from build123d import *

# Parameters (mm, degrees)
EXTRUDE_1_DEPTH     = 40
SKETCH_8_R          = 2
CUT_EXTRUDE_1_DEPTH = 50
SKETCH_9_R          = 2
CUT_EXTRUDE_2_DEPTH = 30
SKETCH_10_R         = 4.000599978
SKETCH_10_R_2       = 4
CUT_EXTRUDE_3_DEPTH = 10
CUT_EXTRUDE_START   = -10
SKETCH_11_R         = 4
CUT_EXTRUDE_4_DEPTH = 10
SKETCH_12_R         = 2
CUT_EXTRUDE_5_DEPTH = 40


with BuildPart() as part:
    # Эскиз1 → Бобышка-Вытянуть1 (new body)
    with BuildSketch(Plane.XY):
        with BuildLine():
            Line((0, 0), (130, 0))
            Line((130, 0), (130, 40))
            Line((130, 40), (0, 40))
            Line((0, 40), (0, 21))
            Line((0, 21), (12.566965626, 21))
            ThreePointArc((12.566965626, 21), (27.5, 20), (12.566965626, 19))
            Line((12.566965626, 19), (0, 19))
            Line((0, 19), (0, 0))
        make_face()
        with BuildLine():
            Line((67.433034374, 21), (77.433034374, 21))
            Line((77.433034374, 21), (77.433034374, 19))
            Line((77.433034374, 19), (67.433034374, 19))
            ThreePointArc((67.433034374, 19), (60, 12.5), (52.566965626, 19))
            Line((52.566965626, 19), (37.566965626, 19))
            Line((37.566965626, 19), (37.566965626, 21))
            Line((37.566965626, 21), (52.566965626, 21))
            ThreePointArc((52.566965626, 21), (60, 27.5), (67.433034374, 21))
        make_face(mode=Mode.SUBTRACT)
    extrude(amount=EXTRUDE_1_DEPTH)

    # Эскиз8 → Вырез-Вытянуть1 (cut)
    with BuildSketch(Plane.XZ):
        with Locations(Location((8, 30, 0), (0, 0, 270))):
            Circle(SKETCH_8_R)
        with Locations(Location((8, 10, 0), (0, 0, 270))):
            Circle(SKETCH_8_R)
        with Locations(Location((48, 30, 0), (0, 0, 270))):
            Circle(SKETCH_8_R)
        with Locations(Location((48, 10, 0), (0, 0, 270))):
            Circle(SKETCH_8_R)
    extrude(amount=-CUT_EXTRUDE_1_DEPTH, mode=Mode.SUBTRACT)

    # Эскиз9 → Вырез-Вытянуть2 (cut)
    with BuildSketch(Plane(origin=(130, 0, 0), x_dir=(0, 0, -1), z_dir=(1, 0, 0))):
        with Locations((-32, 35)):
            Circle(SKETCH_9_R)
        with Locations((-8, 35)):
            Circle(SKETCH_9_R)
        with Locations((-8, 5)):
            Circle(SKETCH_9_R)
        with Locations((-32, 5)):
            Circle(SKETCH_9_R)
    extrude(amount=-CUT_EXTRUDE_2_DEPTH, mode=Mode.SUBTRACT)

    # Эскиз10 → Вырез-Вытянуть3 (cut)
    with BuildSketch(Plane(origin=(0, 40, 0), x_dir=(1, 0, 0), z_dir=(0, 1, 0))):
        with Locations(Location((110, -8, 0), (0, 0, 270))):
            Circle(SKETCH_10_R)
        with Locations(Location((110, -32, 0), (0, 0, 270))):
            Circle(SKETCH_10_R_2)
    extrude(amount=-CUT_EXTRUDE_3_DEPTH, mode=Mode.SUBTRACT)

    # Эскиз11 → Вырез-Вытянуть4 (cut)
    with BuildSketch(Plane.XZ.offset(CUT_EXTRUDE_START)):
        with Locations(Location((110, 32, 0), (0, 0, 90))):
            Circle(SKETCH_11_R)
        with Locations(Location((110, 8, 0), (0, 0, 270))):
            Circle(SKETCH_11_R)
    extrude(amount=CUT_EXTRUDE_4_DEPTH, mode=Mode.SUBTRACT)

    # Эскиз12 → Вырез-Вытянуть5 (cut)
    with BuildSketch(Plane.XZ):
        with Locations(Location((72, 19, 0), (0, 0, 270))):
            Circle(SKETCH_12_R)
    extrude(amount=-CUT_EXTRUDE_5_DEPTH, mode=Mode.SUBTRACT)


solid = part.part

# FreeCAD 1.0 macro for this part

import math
import FreeCAD as App
import Part
import Sketcher

V = App.Vector

doc = App.newDocument("Part")
params = doc.addObject("Spreadsheet::Sheet", "Params")
for row, (alias, value) in enumerate([
    ("sketch1_radius", "7.5 mm"),
    ("sketch1_width", "130 mm"),
    ("sketch1_width2", "10 mm"),
    ("sketch1_width3", "15 mm"),
    ("sketch1_height", "40 mm"),
    ("pad1_length", "40 mm"),
    ("sketch2_diameter", "4 mm"),
    ("pocket1_length", "50 mm"),
    ("sketch3_diameter", "4 mm"),
    ("pocket2_length", "30 mm"),
    ("sketch4_diameter", "8 mm"),
    ("pocket3_length", "10 mm"),
    ("sketch5_diameter", "8 mm"),
    ("pocket4_length", "10 mm"),
    ("sketch6_diameter", "4 mm"),
    ("pocket5_length", "40 mm"),
], start=1):
    params.set(f"A{row}", alias)
    params.set(f"B{row}", "=" + value)
    params.setAlias(f"B{row}", alias)

body = doc.addObject("PartDesign::Body", "Body")

sketch1 = doc.addObject("Sketcher::SketchObject", "Sketch")
body.addObject(sketch1)
sketch1.AttachmentSupport = (doc.XY_Plane, [""])
sketch1.MapMode = "FlatFace"
sketch1.addGeometry(Part.LineSegment(V(0, 0, 0), V(130, 0, 0)), False)
sketch1.addGeometry(Part.LineSegment(V(130, 0, 0), V(130, 40, 0)), False)
sketch1.addGeometry(Part.LineSegment(V(130, 40, 0), V(0, 40, 0)), False)
sketch1.addGeometry(Part.LineSegment(V(0, 40, 0), V(0, 21, 0)), False)
sketch1.addGeometry(Part.LineSegment(V(0, 21, 0), V(12.6, 21, 0)), False)
sketch1.addGeometry(Part.ArcOfCircle(Part.Circle(V(20, 20, 0), V(0, 0, 1), 7.5), math.radians(-172), math.radians(172)), False)
sketch1.addGeometry(Part.LineSegment(V(12.6, 19, 0), V(0, 19, 0)), False)
sketch1.addGeometry(Part.LineSegment(V(0, 19, 0), V(0, 0, 0)), False)
sketch1.addGeometry(Part.ArcOfCircle(Part.Circle(V(60, 20, 0), V(0, 0, 1), 7.5), math.radians(8), math.radians(172)), False)
sketch1.addGeometry(Part.LineSegment(V(67.4, 21, 0), V(77.4, 21, 0)), False)
sketch1.addGeometry(Part.LineSegment(V(77.4, 21, 0), V(77.4, 19, 0)), False)
sketch1.addGeometry(Part.LineSegment(V(77.4, 19, 0), V(67.4, 19, 0)), False)
sketch1.addGeometry(Part.ArcOfCircle(Part.Circle(V(60, 20, 0), V(0, 0, 1), 7.5), math.radians(-172), math.radians(-8)), False)
sketch1.addGeometry(Part.LineSegment(V(52.6, 19, 0), V(37.6, 19, 0)), False)
sketch1.addGeometry(Part.LineSegment(V(37.6, 19, 0), V(37.6, 21, 0)), False)
sketch1.addGeometry(Part.LineSegment(V(37.6, 21, 0), V(52.6, 21, 0)), False)
sketch1.addConstraint(Sketcher.Constraint("Coincident", 0, 2, 1, 1))
sketch1.addConstraint(Sketcher.Constraint("Coincident", 1, 2, 2, 1))
sketch1.addConstraint(Sketcher.Constraint("Coincident", 2, 2, 3, 1))
sketch1.addConstraint(Sketcher.Constraint("Coincident", 3, 2, 4, 1))
sketch1.addConstraint(Sketcher.Constraint("Coincident", 4, 2, 5, 2))
sketch1.addConstraint(Sketcher.Constraint("Coincident", 5, 1, 6, 1))
sketch1.addConstraint(Sketcher.Constraint("Coincident", 6, 2, 7, 1))
sketch1.addConstraint(Sketcher.Constraint("Coincident", 7, 2, 0, 1))
sketch1.addConstraint(Sketcher.Constraint("Coincident", 8, 1, 9, 1))
sketch1.addConstraint(Sketcher.Constraint("Coincident", 9, 2, 10, 1))
sketch1.addConstraint(Sketcher.Constraint("Coincident", 10, 2, 11, 1))
sketch1.addConstraint(Sketcher.Constraint("Coincident", 11, 2, 12, 2))
sketch1.addConstraint(Sketcher.Constraint("Coincident", 12, 1, 13, 1))
sketch1.addConstraint(Sketcher.Constraint("Coincident", 13, 2, 14, 1))
sketch1.addConstraint(Sketcher.Constraint("Coincident", 14, 2, 15, 1))
sketch1.addConstraint(Sketcher.Constraint("Coincident", 15, 2, 8, 2))
sketch1.addConstraint(Sketcher.Constraint("Horizontal", 0))
sketch1.addConstraint(Sketcher.Constraint("Vertical", 1))
sketch1.addConstraint(Sketcher.Constraint("Horizontal", 2))
sketch1.addConstraint(Sketcher.Constraint("Vertical", 3))
sketch1.addConstraint(Sketcher.Constraint("Horizontal", 4))
sketch1.addConstraint(Sketcher.Constraint("Horizontal", 6))
sketch1.addConstraint(Sketcher.Constraint("Vertical", 7))
sketch1.addConstraint(Sketcher.Constraint("Horizontal", 9))
sketch1.addConstraint(Sketcher.Constraint("Vertical", 10))
sketch1.addConstraint(Sketcher.Constraint("Horizontal", 11))
sketch1.addConstraint(Sketcher.Constraint("Horizontal", 13))
sketch1.addConstraint(Sketcher.Constraint("Vertical", 14))
sketch1.addConstraint(Sketcher.Constraint("Horizontal", 15))
sketch1.addConstraint(Sketcher.Constraint("Coincident", 7, 2, -1, 1))
sketch1.addConstraint(Sketcher.Constraint("Coincident", 12, 3, 8, 3))
sketch1.addConstraint(Sketcher.Constraint("Equal", 5, 8))
sketch1.addConstraint(Sketcher.Constraint("Equal", 8, 12))
sketch1.addConstraint(Sketcher.Constraint("PointOnObject", 2, 2, -2))
sketch1.addConstraint(Sketcher.Constraint("Horizontal", 5, 3, 8, 3))
sketch1.addConstraint(Sketcher.Constraint("Horizontal", 4, 2, 8, 1))
sketch1.addConstraint(Sketcher.Constraint("Horizontal", 6, 2, 10, 2))
sketch1.addConstraint(Sketcher.Constraint("Horizontal", 11, 2, 12, 1))
sketch1.addConstraint(Sketcher.Constraint("Horizontal", 9, 2, 14, 2))
sketch1.addConstraint(Sketcher.Constraint("Vertical", 4, 2, 5, 1))
sketch1.addConstraint(Sketcher.Constraint("Equal", 3, 7))
sketch1.addConstraint(Sketcher.Constraint("Radius", 5, 7.5))
sketch1.addConstraint(Sketcher.Constraint("DistanceX", 0, 1, 0, 2, 130.0))
sketch1.addConstraint(Sketcher.Constraint("DistanceX", 9, 1, 9, 2, 10.0))
sketch1.addConstraint(Sketcher.Constraint("DistanceX", 13, 2, 13, 1, 15.0))
sketch1.addConstraint(Sketcher.Constraint("DistanceY", 1, 1, 1, 2, 40.0))
sketch1.addConstraint(Sketcher.Constraint("DistanceY", 3, 2, 3, 1, 19.0))
sketch1.addConstraint(Sketcher.Constraint("DistanceX", -1, 1, 5, 3, 20.0))
sketch1.addConstraint(Sketcher.Constraint("DistanceX", -1, 1, 8, 3, 60.0))
sketch1.setExpression("Constraints[41]", "Params.sketch1_radius")
sketch1.setExpression("Constraints[42]", "Params.sketch1_width")
sketch1.setExpression("Constraints[43]", "Params.sketch1_width2")
sketch1.setExpression("Constraints[44]", "Params.sketch1_width3")
sketch1.setExpression("Constraints[45]", "Params.sketch1_height")
pad1 = doc.addObject("PartDesign::Pad", "Pad")
body.addObject(pad1)
pad1.Profile = sketch1
pad1.setExpression("Length", "Params.pad1_length")

sketch2 = doc.addObject("Sketcher::SketchObject", "Sketch001")
body.addObject(sketch2)
sketch2.AttachmentSupport = (doc.XZ_Plane, [""])
sketch2.MapMode = "FlatFace"
sketch2.addGeometry(Part.Circle(V(8, 30, 0), V(0, 0, 1), 2), False)
sketch2.addGeometry(Part.Circle(V(8, 10, 0), V(0, 0, 1), 2), False)
sketch2.addGeometry(Part.Circle(V(48, 30, 0), V(0, 0, 1), 2), False)
sketch2.addGeometry(Part.Circle(V(48, 10, 0), V(0, 0, 1), 2), False)
sketch2.addConstraint(Sketcher.Constraint("Equal", 0, 1))
sketch2.addConstraint(Sketcher.Constraint("Equal", 1, 2))
sketch2.addConstraint(Sketcher.Constraint("Equal", 2, 3))
sketch2.addConstraint(Sketcher.Constraint("Horizontal", 0, 3, 2, 3))
sketch2.addConstraint(Sketcher.Constraint("Horizontal", 1, 3, 3, 3))
sketch2.addConstraint(Sketcher.Constraint("Vertical", 0, 3, 1, 3))
sketch2.addConstraint(Sketcher.Constraint("Vertical", 2, 3, 3, 3))
sketch2.addConstraint(Sketcher.Constraint("Diameter", 0, 4.0))
sketch2.addConstraint(Sketcher.Constraint("DistanceX", -1, 1, 0, 3, 8.0))
sketch2.addConstraint(Sketcher.Constraint("DistanceY", -1, 1, 0, 3, 30.0))
sketch2.addConstraint(Sketcher.Constraint("DistanceY", -1, 1, 1, 3, 10.0))
sketch2.addConstraint(Sketcher.Constraint("DistanceX", -1, 1, 2, 3, 48.0))
sketch2.setExpression("Constraints[7]", "Params.sketch2_diameter")
pocket1 = doc.addObject("PartDesign::Pocket", "Pocket")
body.addObject(pocket1)
pocket1.Profile = sketch2
pocket1.setExpression("Length", "Params.pocket1_length")

sketch3 = doc.addObject("Sketcher::SketchObject", "Sketch002")
body.addObject(sketch3)
sketch3.AttachmentSupport = (doc.YZ_Plane, [""])
sketch3.MapMode = "FlatFace"
sketch3.AttachmentOffset = App.Placement(V(0, 0, 130), App.Rotation())
sketch3.addGeometry(Part.Circle(V(35, 32, 0), V(0, 0, 1), 2), False)
sketch3.addGeometry(Part.Circle(V(35, 8, 0), V(0, 0, 1), 2), False)
sketch3.addGeometry(Part.Circle(V(5, 8, 0), V(0, 0, 1), 2), False)
sketch3.addGeometry(Part.Circle(V(5, 32, 0), V(0, 0, 1), 2), False)
sketch3.addConstraint(Sketcher.Constraint("Equal", 0, 1))
sketch3.addConstraint(Sketcher.Constraint("Equal", 1, 2))
sketch3.addConstraint(Sketcher.Constraint("Equal", 2, 3))
sketch3.addConstraint(Sketcher.Constraint("Horizontal", 1, 3, 2, 3))
sketch3.addConstraint(Sketcher.Constraint("Horizontal", 0, 3, 3, 3))
sketch3.addConstraint(Sketcher.Constraint("Vertical", 0, 3, 1, 3))
sketch3.addConstraint(Sketcher.Constraint("Vertical", 2, 3, 3, 3))
sketch3.addConstraint(Sketcher.Constraint("Diameter", 0, 4.0))
sketch3.addConstraint(Sketcher.Constraint("DistanceX", -1, 1, 0, 3, 35.0))
sketch3.addConstraint(Sketcher.Constraint("DistanceY", -1, 1, 0, 3, 32.0))
sketch3.addConstraint(Sketcher.Constraint("DistanceY", -1, 1, 1, 3, 8.0))
sketch3.addConstraint(Sketcher.Constraint("DistanceX", -1, 1, 2, 3, 5.0))
sketch3.setExpression("Constraints[7]", "Params.sketch3_diameter")
pocket2 = doc.addObject("PartDesign::Pocket", "Pocket001")
body.addObject(pocket2)
pocket2.Profile = sketch3
pocket2.setExpression("Length", "Params.pocket2_length")

sketch4 = doc.addObject("Sketcher::SketchObject", "Sketch003")
body.addObject(sketch4)
sketch4.AttachmentSupport = (doc.XZ_Plane, [""])
sketch4.MapMode = "FlatFace"
sketch4.AttachmentOffset = App.Placement(V(0, 0, -40), App.Rotation())
sketch4.addGeometry(Part.Circle(V(110, 8, 0), V(0, 0, 1), 4), False)
sketch4.addGeometry(Part.Circle(V(110, 32, 0), V(0, 0, 1), 4), False)
sketch4.addConstraint(Sketcher.Constraint("Vertical", 0, 3, 1, 3))
sketch4.addConstraint(Sketcher.Constraint("Diameter", 1, 8.0))
sketch4.addConstraint(Sketcher.Constraint("DistanceX", -1, 1, 0, 3, 110.0))
sketch4.addConstraint(Sketcher.Constraint("DistanceY", -1, 1, 0, 3, 8.0))
sketch4.addConstraint(Sketcher.Constraint("DistanceY", -1, 1, 1, 3, 32.0))
sketch4.addConstraint(Sketcher.Constraint("Diameter", 0, 8.0012))
sketch4.setExpression("Constraints[1]", "Params.sketch4_diameter")
pocket3 = doc.addObject("PartDesign::Pocket", "Pocket002")
body.addObject(pocket3)
pocket3.Profile = sketch4
pocket3.setExpression("Length", "Params.pocket3_length")
pocket3.Reversed = True

sketch5 = doc.addObject("Sketcher::SketchObject", "Sketch004")
body.addObject(sketch5)
sketch5.AttachmentSupport = (doc.XZ_Plane, [""])
sketch5.MapMode = "FlatFace"
sketch5.AttachmentOffset = App.Placement(V(0, 0, -10), App.Rotation())
sketch5.addGeometry(Part.Circle(V(110, 32, 0), V(0, 0, 1), 4), False)
sketch5.addGeometry(Part.Circle(V(110, 8, 0), V(0, 0, 1), 4), False)
sketch5.addConstraint(Sketcher.Constraint("Equal", 0, 1))
sketch5.addConstraint(Sketcher.Constraint("Vertical", 0, 3, 1, 3))
sketch5.addConstraint(Sketcher.Constraint("Diameter", 0, 8.0))
sketch5.addConstraint(Sketcher.Constraint("DistanceX", -1, 1, 0, 3, 110.0))
sketch5.addConstraint(Sketcher.Constraint("DistanceY", -1, 1, 0, 3, 32.0))
sketch5.addConstraint(Sketcher.Constraint("DistanceY", -1, 1, 1, 3, 8.0))
sketch5.setExpression("Constraints[2]", "Params.sketch5_diameter")
pocket4 = doc.addObject("PartDesign::Pocket", "Pocket003")
body.addObject(pocket4)
pocket4.Profile = sketch5
pocket4.setExpression("Length", "Params.pocket4_length")
pocket4.Reversed = True

sketch6 = doc.addObject("Sketcher::SketchObject", "Sketch005")
body.addObject(sketch6)
sketch6.AttachmentSupport = (doc.XZ_Plane, [""])
sketch6.MapMode = "FlatFace"
sketch6.addGeometry(Part.Circle(V(72, 19, 0), V(0, 0, 1), 2), False)
sketch6.addConstraint(Sketcher.Constraint("Diameter", 0, 4.0))
sketch6.addConstraint(Sketcher.Constraint("DistanceX", -1, 1, 0, 3, 72.0))
sketch6.addConstraint(Sketcher.Constraint("DistanceY", -1, 1, 0, 3, 19.0))
sketch6.setExpression("Constraints[0]", "Params.sketch6_diameter")
pocket5 = doc.addObject("PartDesign::Pocket", "Pocket004")
body.addObject(pocket5)
pocket5.Profile = sketch6
pocket5.setExpression("Length", "Params.pocket5_length")

doc.recompute()
